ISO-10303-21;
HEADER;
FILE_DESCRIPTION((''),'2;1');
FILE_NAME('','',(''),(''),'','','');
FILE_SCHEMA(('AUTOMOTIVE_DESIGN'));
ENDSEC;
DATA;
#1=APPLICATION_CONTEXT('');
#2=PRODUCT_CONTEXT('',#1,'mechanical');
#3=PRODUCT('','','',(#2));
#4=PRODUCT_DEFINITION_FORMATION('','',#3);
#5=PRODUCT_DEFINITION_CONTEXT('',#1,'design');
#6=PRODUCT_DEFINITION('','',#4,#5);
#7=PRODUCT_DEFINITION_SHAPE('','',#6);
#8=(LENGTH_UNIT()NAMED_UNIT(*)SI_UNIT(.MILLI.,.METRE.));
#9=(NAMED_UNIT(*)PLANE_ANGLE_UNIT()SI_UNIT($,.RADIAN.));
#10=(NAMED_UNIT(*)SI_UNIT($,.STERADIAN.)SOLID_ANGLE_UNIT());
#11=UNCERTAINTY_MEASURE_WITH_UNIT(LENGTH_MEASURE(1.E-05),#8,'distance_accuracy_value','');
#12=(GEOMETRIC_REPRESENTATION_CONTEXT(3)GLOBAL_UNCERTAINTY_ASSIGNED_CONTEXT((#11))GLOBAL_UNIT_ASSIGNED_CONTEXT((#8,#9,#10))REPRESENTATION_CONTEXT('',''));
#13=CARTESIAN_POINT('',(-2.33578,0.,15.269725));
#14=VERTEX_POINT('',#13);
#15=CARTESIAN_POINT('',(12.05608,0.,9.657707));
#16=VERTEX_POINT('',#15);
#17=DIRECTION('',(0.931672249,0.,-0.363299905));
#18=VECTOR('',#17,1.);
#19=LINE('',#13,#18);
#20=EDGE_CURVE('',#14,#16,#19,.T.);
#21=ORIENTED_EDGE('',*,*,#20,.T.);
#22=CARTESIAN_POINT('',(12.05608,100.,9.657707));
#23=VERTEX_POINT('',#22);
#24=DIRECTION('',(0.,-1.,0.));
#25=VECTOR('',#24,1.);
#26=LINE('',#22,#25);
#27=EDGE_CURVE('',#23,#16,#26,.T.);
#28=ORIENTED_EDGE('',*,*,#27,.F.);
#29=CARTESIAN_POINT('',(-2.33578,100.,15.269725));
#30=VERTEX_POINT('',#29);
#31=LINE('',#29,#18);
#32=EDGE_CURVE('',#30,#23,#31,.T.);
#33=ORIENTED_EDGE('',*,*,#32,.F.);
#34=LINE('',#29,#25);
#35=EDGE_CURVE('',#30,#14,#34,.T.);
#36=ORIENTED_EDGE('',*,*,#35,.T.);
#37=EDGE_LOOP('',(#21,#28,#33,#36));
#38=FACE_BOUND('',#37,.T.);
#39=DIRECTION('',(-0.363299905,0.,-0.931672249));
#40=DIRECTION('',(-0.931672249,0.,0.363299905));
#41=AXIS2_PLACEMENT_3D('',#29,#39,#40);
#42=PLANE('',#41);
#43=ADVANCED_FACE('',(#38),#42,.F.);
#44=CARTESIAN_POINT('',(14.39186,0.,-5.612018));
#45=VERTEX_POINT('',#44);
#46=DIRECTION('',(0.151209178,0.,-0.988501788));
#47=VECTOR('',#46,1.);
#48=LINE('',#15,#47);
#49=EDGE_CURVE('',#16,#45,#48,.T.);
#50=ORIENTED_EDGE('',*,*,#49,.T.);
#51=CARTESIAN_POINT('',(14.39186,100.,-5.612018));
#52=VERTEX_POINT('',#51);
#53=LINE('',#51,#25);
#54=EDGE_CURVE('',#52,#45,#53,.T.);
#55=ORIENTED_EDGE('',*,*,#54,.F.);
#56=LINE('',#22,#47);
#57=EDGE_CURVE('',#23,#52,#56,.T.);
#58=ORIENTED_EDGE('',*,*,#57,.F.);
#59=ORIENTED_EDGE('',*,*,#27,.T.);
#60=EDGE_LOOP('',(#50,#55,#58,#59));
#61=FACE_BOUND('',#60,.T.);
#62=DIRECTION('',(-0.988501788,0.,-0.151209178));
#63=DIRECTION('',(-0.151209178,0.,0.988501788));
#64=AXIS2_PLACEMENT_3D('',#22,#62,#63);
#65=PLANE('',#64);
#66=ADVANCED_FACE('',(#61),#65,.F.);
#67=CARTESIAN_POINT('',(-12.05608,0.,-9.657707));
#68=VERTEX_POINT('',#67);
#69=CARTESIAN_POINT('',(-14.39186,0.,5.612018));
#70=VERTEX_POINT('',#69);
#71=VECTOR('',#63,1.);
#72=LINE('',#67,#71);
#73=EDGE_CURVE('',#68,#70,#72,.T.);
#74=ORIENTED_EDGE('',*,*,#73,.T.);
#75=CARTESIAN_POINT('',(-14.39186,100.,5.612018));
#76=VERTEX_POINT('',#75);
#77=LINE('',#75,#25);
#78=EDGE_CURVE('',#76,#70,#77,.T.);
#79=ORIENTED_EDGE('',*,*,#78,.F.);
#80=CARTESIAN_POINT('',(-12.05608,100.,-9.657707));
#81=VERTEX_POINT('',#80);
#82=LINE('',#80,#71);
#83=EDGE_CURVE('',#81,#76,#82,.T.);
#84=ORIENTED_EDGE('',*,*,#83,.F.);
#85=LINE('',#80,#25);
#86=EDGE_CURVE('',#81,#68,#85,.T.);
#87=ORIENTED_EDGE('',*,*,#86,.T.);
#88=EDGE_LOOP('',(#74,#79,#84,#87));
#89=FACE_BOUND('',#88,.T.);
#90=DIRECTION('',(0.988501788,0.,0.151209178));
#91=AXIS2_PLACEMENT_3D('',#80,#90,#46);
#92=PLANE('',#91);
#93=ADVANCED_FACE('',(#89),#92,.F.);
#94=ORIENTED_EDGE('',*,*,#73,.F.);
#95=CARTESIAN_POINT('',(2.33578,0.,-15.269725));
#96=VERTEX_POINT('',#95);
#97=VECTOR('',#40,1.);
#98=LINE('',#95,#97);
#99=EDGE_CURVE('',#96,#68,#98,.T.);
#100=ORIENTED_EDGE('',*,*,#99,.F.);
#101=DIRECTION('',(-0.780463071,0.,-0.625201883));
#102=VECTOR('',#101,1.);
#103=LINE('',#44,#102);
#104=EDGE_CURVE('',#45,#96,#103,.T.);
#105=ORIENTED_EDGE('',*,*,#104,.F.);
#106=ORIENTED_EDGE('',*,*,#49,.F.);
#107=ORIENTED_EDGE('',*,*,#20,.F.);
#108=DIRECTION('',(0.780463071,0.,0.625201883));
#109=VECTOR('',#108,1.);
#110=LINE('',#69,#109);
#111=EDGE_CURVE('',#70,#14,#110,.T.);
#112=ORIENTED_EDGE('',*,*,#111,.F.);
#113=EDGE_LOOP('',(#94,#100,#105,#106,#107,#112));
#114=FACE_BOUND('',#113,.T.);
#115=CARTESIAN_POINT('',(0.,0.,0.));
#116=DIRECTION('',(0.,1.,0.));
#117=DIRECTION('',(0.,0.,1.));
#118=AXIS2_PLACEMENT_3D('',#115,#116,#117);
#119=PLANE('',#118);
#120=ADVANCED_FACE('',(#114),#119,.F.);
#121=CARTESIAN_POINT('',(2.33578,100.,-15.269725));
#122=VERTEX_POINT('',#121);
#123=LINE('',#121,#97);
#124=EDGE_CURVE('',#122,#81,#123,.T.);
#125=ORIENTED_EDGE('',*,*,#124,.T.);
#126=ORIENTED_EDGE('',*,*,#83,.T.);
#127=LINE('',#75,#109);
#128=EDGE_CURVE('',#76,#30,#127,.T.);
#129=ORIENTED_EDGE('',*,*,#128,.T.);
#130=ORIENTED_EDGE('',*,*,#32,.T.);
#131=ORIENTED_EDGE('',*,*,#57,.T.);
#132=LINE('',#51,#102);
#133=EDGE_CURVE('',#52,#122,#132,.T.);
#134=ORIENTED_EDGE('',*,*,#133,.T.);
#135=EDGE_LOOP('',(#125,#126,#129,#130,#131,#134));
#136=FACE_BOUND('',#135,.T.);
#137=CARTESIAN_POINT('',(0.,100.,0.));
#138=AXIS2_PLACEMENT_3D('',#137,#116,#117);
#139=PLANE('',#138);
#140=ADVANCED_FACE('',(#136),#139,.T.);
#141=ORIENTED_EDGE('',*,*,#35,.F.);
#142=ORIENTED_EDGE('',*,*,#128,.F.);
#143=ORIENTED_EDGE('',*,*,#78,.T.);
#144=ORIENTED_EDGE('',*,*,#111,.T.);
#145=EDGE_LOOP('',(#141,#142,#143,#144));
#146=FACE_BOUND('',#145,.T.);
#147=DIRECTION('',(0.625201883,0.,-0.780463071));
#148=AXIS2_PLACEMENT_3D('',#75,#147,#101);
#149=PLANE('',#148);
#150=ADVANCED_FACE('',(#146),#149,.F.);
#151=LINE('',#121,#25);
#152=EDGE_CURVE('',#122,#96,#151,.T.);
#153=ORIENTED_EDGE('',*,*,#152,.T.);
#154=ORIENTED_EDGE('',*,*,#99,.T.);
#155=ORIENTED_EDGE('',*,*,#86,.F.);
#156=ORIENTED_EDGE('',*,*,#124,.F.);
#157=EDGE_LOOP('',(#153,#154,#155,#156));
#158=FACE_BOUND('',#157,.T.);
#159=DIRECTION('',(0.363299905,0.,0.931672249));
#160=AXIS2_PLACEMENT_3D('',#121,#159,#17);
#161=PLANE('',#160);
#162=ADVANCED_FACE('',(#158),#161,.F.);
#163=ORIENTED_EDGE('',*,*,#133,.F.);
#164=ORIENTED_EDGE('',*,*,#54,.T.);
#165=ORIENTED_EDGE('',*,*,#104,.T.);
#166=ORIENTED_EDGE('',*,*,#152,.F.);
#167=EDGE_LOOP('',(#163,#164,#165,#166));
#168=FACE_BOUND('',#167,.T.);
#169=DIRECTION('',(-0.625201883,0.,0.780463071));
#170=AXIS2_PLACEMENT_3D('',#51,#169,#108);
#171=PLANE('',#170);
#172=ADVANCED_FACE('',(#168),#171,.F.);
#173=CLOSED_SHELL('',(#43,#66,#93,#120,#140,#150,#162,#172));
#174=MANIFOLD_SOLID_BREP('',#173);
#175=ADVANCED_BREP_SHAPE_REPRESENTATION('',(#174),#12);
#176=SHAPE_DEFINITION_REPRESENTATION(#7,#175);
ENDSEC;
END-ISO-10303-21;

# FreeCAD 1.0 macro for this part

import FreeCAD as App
import Part
import Sketcher
from FreeCAD import Vector


def add_polygon(sketch, points):
    """Adds a closed chain of lines whose ends are joined by coincident constraints."""
    first, n = sketch.GeometryCount, len(points)
    for a, b in zip(points, points[1:] + points[:1]):
        sketch.addGeometry(Part.LineSegment(App.Vector(*a, 0), App.Vector(*b, 0)), False)
    for i in range(n):
        sketch.addConstraint(Sketcher.Constraint("Coincident", first + i, 2, first + (i + 1) % n, 1))

doc = App.newDocument("Part")
body = doc.addObject("PartDesign::Body", "Body")

sketch1 = body.newObject("Sketcher::SketchObject", "Sketch")
sketch1.AttachmentSupport = (doc.getObject("XZ_Plane"), [""])
sketch1.MapMode = "FlatFace"
add_polygon(sketch1, [(2, -15), (-12, -10), (-14, 6), (-2, 15), (12, 10), (14, -6)])
sketch1.addConstraint(Sketcher.Constraint("Symmetric", 0, 2, 3, 2, -1, 1))
sketch1.addConstraint(Sketcher.Constraint("Symmetric", 1, 2, 4, 2, -1, 1))
sketch1.addConstraint(Sketcher.Constraint("Symmetric", 2, 2, 5, 2, -1, 1))
sketch1.addConstraint(Sketcher.Constraint("Equal", 0, 1))
sketch1.addConstraint(Sketcher.Constraint("Equal", 1, 2))
sketch1.addConstraint(Sketcher.Constraint("DistanceX", 0, 2, 2, 2, 9.7203))
sketch1.addConstraint(Sketcher.Constraint("DistanceX", 0, 2, -1, 1, 12.05608))
sketch1.addConstraint(Sketcher.Constraint("DistanceX", 1, 2, -1, 1, 14.39186))
sketch1.addConstraint(Sketcher.Constraint("DistanceY", 1, 2, 3, 2, 4.045689))
pad1 = body.newObject("PartDesign::Pad", "Pad")
pad1.Profile = sketch1
pad1.Length = 100
pad1.Reversed = True

doc.recompute()
